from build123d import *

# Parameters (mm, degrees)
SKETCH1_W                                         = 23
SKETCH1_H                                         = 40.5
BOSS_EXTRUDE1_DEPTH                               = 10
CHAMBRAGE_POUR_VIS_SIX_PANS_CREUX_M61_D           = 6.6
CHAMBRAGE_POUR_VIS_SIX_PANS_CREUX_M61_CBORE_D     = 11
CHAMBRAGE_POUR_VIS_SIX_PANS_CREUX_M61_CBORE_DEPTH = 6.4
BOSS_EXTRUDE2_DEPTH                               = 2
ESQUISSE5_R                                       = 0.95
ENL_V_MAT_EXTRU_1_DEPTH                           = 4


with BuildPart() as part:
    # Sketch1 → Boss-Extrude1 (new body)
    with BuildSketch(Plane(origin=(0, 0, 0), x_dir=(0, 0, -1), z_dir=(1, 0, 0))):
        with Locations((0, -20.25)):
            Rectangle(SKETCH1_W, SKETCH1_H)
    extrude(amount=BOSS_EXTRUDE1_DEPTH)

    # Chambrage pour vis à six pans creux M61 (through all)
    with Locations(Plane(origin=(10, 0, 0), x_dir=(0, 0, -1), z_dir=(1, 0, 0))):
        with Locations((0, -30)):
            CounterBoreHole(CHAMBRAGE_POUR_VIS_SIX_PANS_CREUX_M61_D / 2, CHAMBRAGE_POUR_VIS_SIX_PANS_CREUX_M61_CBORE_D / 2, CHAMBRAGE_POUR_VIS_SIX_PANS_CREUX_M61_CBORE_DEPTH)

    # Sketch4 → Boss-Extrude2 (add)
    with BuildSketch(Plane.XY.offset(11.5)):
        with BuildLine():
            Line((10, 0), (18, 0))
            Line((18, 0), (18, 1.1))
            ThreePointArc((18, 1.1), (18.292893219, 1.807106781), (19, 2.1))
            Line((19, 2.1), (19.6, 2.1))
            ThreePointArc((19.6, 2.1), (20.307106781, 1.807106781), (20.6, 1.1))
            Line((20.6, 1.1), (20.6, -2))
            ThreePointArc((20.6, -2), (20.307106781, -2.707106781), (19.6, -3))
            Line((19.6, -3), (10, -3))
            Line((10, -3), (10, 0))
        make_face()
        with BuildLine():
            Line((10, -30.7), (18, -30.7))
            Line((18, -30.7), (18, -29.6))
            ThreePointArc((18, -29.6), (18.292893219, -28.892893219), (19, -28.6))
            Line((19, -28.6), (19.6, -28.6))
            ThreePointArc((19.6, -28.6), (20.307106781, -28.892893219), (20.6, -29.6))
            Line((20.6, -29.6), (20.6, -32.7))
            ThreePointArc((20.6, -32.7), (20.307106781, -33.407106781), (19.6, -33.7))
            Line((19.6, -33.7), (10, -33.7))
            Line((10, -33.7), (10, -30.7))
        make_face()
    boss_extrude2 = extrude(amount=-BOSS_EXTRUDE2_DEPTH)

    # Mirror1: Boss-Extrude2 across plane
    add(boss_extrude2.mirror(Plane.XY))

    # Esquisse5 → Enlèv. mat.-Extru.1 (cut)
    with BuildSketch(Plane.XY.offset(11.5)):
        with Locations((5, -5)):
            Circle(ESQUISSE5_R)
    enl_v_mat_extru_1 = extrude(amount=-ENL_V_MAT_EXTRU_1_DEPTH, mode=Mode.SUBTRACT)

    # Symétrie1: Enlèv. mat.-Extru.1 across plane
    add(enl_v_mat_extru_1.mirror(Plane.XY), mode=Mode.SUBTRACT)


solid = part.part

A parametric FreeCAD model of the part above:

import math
import FreeCAD as App
import Part
import Sketcher

doc = App.newDocument("Part")
params = doc.addObject("Spreadsheet::Sheet", "Params")
for row, (alias, value) in enumerate([
    ("sketch1_height", "23 mm"),
    ("sketch1_width", "40.5 mm"),
    ("pad1_length", "10 mm"),
    ("sketch2_diameter", "6.6 mm"),
    ("hole_diameter", "6.6 mm"),
    ("hole_cbore_diameter", "11 mm"),
    ("hole_cbore_depth", "6.4 mm"),
    ("sketch3_radius", "1 mm"),
    ("sketch3_width", "8 mm"),
    ("sketch3_height", "3 mm"),
    ("sketch3_width2", "9.6 mm"),
    ("sketch3_height2", "3.1 mm"),
    ("pad2_length", "2 mm"),
    ("sketch4_diameter", "1.9 mm"),
    ("pocket1_length", "4 mm"),
], start=1):
    params.set(f"A{row}", alias)
    params.set(f"B{row}", "=" + value)
    params.setAlias(f"B{row}", alias)

body = doc.addObject("PartDesign::Body", "Body")

sketch1 = doc.addObject("Sketcher::SketchObject", "Sketch")
body.addObject(sketch1)
sketch1.AttachmentSupport = (doc.YZ_Plane, [""])
sketch1.MapMode = "FlatFace"
sketch1.addGeometry([
    Part.LineSegment(App.Vector(0, 12, 0), App.Vector(-40, 12, 0)),
    Part.LineSegment(App.Vector(-40, 12, 0), App.Vector(-40, -12, 0)),
    Part.LineSegment(App.Vector(-40, -12, 0), App.Vector(0, -12, 0)),
    Part.LineSegment(App.Vector(0, -12, 0), App.Vector(0, 12, 0)),
], False)
sketch1.addConstraint([
    Sketcher.Constraint("Coincident", 0, 2, 1, 1),
    Sketcher.Constraint("Coincident", 1, 2, 2, 1),
    Sketcher.Constraint("Coincident", 2, 2, 3, 1),
    Sketcher.Constraint("Coincident", 3, 2, 0, 1),
    Sketcher.Constraint("Horizontal", 0),
    Sketcher.Constraint("Vertical", 1),
    Sketcher.Constraint("Horizontal", 2),
    Sketcher.Constraint("Vertical", 3),
    Sketcher.Constraint("Symmetric", 2, 2, 3, 2, -1, 1),
    Sketcher.Constraint("DistanceY", 1, 2, 1, 1, 23.0),
    Sketcher.Constraint("DistanceX", 0, 2, 0, 1, 40.5),
])
sketch1.setExpression("Constraints[9]", "Params.sketch1_height")
sketch1.setExpression("Constraints[10]", "Params.sketch1_width")
pad1 = doc.addObject("PartDesign::Pad", "Pad")
body.addObject(pad1)
pad1.Profile = sketch1
pad1.setExpression("Length", "Params.pad1_length")

sketch2 = doc.addObject("Sketcher::SketchObject", "Sketch001")
body.addObject(sketch2)
sketch2.AttachmentSupport = (doc.YZ_Plane, [""])
sketch2.MapMode = "FlatFace"
sketch2.AttachmentOffset = App.Placement(App.Vector(0, 0, 10), App.Rotation())
sketch2.addGeometry(Part.Circle(App.Vector(-30, 0, 0), App.Vector(0, 0, 1), 3.3), False)
sketch2.addConstraint([
    Sketcher.Constraint("PointOnObject", 0, 3, -1),
    Sketcher.Constraint("Diameter", 0, 6.6),
    Sketcher.Constraint("DistanceX", 0, 3, -1, 1, 30.0),
])
sketch2.setExpression("Constraints[1]", "Params.sketch2_diameter")
doc.recompute()
hole = doc.addObject("PartDesign::Hole", "Hole")
body.addObject(hole)
hole.Profile = sketch2
hole.ThreadType = "None"
hole.setExpression("Diameter", "Params.hole_diameter")
hole.DepthType = "ThroughAll"
hole.HoleCutType = "Counterbore"
hole.setExpression("HoleCutDiameter", "Params.hole_cbore_diameter")
hole.setExpression("HoleCutDepth", "Params.hole_cbore_depth")

sketch3 = doc.addObject("Sketcher::SketchObject", "Sketch002")
body.addObject(sketch3)
sketch3.AttachmentSupport = (doc.XY_Plane, [""])
sketch3.MapMode = "FlatFace"
sketch3.AttachmentOffset = App.Placement(App.Vector(0, 0, 11.5), App.Rotation())
sketch3.addGeometry([
    Part.LineSegment(App.Vector(18, 0, 0), App.Vector(10, 0, 0)),
    Part.LineSegment(App.Vector(10, 0, 0), App.Vector(10, -3, 0)),
    Part.LineSegment(App.Vector(10, -3, 0), App.Vector(19.6, -3, 0)),
    Part.ArcOfCircle(Part.Circle(App.Vector(19.6, -2, 0), App.Vector(0, 0, 1), 1), math.radians(-90), math.radians(0)),
    Part.LineSegment(App.Vector(20.6, -2, 0), App.Vector(20.6, 1.1, 0)),
    Part.ArcOfCircle(Part.Circle(App.Vector(19.6, 1.1, 0), App.Vector(0, 0, 1), 1), math.radians(0), math.radians(90)),
    Part.LineSegment(App.Vector(19.6, 2.1, 0), App.Vector(19, 2.1, 0)),
    Part.ArcOfCircle(Part.Circle(App.Vector(19, 1.1, 0), App.Vector(0, 0, 1), 1), math.radians(90), math.radians(180)),
    Part.LineSegment(App.Vector(18, 1.1, 0), App.Vector(18, 0, 0)),
    Part.LineSegment(App.Vector(18, -30.7, 0), App.Vector(10, -30.7, 0)),
    Part.LineSegment(App.Vector(10, -30.7, 0), App.Vector(10, -33.7, 0)),
    Part.LineSegment(App.Vector(10, -33.7, 0), App.Vector(19.6, -33.7, 0)),
    Part.ArcOfCircle(Part.Circle(App.Vector(19.6, -32.7, 0), App.Vector(0, 0, 1), 1), math.radians(-90), math.radians(0)),
    Part.LineSegment(App.Vector(20.6, -32.7, 0), App.Vector(20.6, -29.6, 0)),
    Part.ArcOfCircle(Part.Circle(App.Vector(19.6, -29.6, 0), App.Vector(0, 0, 1), 1), math.radians(0), math.radians(90)),
    Part.LineSegment(App.Vector(19.6, -28.6, 0), App.Vector(19, -28.6, 0)),
    Part.ArcOfCircle(Part.Circle(App.Vector(19, -29.6, 0), App.Vector(0, 0, 1), 1), math.radians(90), math.radians(180)),
    Part.LineSegment(App.Vector(18, -29.6, 0), App.Vector(18, -30.7, 0)),
], False)
sketch3.addConstraint([
    Sketcher.Constraint("Coincident", 0, 2, 1, 1),
    Sketcher.Constraint("Coincident", 1, 2, 2, 1),
    Sketcher.Constraint("Tangent", 2, 2, 3, 1),
    Sketcher.Constraint("Tangent", 3, 2, 4, 1),
    Sketcher.Constraint("Tangent", 4, 2, 5, 1),
    Sketcher.Constraint("Tangent", 5, 2, 6, 1),
    Sketcher.Constraint("Tangent", 6, 2, 7, 1),
    Sketcher.Constraint("Tangent", 7, 2, 8, 1),
    Sketcher.Constraint("Coincident", 8, 2, 0, 1),
    Sketcher.Constraint("Coincident", 9, 2, 10, 1),
    Sketcher.Constraint("Coincident", 10, 2, 11, 1),
    Sketcher.Constraint("Tangent", 11, 2, 12, 1),
    Sketcher.Constraint("Tangent", 12, 2, 13, 1),
    Sketcher.Constraint("Tangent", 13, 2, 14, 1),
    Sketcher.Constraint("Tangent", 14, 2, 15, 1),
    Sketcher.Constraint("Tangent", 15, 2, 16, 1),
    Sketcher.Constraint("Tangent", 16, 2, 17, 1),
    Sketcher.Constraint("Coincident", 17, 2, 9, 1),
    Sketcher.Constraint("Horizontal", 0),
    Sketcher.Constraint("Vertical", 1),
    Sketcher.Constraint("Horizontal", 2),
    Sketcher.Constraint("Vertical", 4),
    Sketcher.Constraint("Horizontal", 6),
    Sketcher.Constraint("Vertical", 8),
    Sketcher.Constraint("Horizontal", 9),
    Sketcher.Constraint("Vertical", 10),
    Sketcher.Constraint("Horizontal", 11),
    Sketcher.Constraint("Vertical", 13),
    Sketcher.Constraint("Horizontal", 15),
    Sketcher.Constraint("Vertical", 17),
    Sketcher.Constraint("Equal", 3, 5),
    Sketcher.Constraint("Equal", 5, 7),
    Sketcher.Constraint("Equal", 7, 12),
    Sketcher.Constraint("Equal", 12, 14),
    Sketcher.Constraint("Equal", 14, 16),
    Sketcher.Constraint("PointOnObject", 0, 2, -1),
    Sketcher.Constraint("Vertical", 5, 3, 12, 3),
    Sketcher.Constraint("Vertical", 7, 3, 16, 3),
    Sketcher.Constraint("Vertical", 1, 2, 9, 2),
    Sketcher.Constraint("Equal", 1, 10),
    Sketcher.Constraint("Equal", 4, 13),
    Sketcher.Constraint("Radius", 3, 1.0),
    Sketcher.Constraint("DistanceX", 0, 2, 0, 1, 8.0),
    Sketcher.Constraint("DistanceY", 1, 2, 1, 1, 3.0),
    Sketcher.Constraint("DistanceX", 2, 1, 2, 2, 9.6),
    Sketcher.Constraint("DistanceY", 4, 1, 4, 2, 3.1),
    Sketcher.Constraint("DistanceX", -1, 1, 7, 3, 19.0),
    Sketcher.Constraint("DistanceY", 12, 3, -1, 1, 32.7),
])
sketch3.setExpression("Constraints[41]", "Params.sketch3_radius")
sketch3.setExpression("Constraints[42]", "Params.sketch3_width")
sketch3.setExpression("Constraints[43]", "Params.sketch3_height")
sketch3.setExpression("Constraints[44]", "Params.sketch3_width2")
sketch3.setExpression("Constraints[45]", "Params.sketch3_height2")
pad2 = doc.addObject("PartDesign::Pad", "Pad001")
body.addObject(pad2)
pad2.Profile = sketch3
pad2.setExpression("Length", "Params.pad2_length")
pad2.Reversed = True
doc.recompute()

mirrored = doc.addObject("PartDesign::Mirrored", "Mirrored")
body.addObject(mirrored)
mirrored.Originals = [pad2]
mirrored.MirrorPlane = (doc.XY_Plane, [""])
body.Tip = mirrored

sketch4 = doc.addObject("Sketcher::SketchObject", "Sketch003")
body.addObject(sketch4)
sketch4.AttachmentSupport = (doc.XY_Plane, [""])
sketch4.MapMode = "FlatFace"
sketch4.AttachmentOffset = App.Placement(App.Vector(0, 0, 11.5), App.Rotation())
sketch4.addGeometry(Part.Circle(App.Vector(5, -5, 0), App.Vector(0, 0, 1), 0.9), False)
sketch4.addConstraint([
    Sketcher.Constraint("Diameter", 0, 1.9),
    Sketcher.Constraint("DistanceX", -1, 1, 0, 3, 5.0),
    Sketcher.Constraint("DistanceY", 0, 3, -1, 1, 5.0),
])
sketch4.setExpression("Constraints[0]", "Params.sketch4_diameter")
pocket1 = doc.addObject("PartDesign::Pocket", "Pocket")
body.addObject(pocket1)
pocket1.Profile = sketch4
pocket1.setExpression("Length", "Params.pocket1_length")
doc.recompute()

mirrored2 = doc.addObject("PartDesign::Mirrored", "Mirrored001")
body.addObject(mirrored2)
mirrored2.Originals = [pocket1]
mirrored2.MirrorPlane = (doc.XY_Plane, [""])
body.Tip = mirrored2

doc.recompute()
